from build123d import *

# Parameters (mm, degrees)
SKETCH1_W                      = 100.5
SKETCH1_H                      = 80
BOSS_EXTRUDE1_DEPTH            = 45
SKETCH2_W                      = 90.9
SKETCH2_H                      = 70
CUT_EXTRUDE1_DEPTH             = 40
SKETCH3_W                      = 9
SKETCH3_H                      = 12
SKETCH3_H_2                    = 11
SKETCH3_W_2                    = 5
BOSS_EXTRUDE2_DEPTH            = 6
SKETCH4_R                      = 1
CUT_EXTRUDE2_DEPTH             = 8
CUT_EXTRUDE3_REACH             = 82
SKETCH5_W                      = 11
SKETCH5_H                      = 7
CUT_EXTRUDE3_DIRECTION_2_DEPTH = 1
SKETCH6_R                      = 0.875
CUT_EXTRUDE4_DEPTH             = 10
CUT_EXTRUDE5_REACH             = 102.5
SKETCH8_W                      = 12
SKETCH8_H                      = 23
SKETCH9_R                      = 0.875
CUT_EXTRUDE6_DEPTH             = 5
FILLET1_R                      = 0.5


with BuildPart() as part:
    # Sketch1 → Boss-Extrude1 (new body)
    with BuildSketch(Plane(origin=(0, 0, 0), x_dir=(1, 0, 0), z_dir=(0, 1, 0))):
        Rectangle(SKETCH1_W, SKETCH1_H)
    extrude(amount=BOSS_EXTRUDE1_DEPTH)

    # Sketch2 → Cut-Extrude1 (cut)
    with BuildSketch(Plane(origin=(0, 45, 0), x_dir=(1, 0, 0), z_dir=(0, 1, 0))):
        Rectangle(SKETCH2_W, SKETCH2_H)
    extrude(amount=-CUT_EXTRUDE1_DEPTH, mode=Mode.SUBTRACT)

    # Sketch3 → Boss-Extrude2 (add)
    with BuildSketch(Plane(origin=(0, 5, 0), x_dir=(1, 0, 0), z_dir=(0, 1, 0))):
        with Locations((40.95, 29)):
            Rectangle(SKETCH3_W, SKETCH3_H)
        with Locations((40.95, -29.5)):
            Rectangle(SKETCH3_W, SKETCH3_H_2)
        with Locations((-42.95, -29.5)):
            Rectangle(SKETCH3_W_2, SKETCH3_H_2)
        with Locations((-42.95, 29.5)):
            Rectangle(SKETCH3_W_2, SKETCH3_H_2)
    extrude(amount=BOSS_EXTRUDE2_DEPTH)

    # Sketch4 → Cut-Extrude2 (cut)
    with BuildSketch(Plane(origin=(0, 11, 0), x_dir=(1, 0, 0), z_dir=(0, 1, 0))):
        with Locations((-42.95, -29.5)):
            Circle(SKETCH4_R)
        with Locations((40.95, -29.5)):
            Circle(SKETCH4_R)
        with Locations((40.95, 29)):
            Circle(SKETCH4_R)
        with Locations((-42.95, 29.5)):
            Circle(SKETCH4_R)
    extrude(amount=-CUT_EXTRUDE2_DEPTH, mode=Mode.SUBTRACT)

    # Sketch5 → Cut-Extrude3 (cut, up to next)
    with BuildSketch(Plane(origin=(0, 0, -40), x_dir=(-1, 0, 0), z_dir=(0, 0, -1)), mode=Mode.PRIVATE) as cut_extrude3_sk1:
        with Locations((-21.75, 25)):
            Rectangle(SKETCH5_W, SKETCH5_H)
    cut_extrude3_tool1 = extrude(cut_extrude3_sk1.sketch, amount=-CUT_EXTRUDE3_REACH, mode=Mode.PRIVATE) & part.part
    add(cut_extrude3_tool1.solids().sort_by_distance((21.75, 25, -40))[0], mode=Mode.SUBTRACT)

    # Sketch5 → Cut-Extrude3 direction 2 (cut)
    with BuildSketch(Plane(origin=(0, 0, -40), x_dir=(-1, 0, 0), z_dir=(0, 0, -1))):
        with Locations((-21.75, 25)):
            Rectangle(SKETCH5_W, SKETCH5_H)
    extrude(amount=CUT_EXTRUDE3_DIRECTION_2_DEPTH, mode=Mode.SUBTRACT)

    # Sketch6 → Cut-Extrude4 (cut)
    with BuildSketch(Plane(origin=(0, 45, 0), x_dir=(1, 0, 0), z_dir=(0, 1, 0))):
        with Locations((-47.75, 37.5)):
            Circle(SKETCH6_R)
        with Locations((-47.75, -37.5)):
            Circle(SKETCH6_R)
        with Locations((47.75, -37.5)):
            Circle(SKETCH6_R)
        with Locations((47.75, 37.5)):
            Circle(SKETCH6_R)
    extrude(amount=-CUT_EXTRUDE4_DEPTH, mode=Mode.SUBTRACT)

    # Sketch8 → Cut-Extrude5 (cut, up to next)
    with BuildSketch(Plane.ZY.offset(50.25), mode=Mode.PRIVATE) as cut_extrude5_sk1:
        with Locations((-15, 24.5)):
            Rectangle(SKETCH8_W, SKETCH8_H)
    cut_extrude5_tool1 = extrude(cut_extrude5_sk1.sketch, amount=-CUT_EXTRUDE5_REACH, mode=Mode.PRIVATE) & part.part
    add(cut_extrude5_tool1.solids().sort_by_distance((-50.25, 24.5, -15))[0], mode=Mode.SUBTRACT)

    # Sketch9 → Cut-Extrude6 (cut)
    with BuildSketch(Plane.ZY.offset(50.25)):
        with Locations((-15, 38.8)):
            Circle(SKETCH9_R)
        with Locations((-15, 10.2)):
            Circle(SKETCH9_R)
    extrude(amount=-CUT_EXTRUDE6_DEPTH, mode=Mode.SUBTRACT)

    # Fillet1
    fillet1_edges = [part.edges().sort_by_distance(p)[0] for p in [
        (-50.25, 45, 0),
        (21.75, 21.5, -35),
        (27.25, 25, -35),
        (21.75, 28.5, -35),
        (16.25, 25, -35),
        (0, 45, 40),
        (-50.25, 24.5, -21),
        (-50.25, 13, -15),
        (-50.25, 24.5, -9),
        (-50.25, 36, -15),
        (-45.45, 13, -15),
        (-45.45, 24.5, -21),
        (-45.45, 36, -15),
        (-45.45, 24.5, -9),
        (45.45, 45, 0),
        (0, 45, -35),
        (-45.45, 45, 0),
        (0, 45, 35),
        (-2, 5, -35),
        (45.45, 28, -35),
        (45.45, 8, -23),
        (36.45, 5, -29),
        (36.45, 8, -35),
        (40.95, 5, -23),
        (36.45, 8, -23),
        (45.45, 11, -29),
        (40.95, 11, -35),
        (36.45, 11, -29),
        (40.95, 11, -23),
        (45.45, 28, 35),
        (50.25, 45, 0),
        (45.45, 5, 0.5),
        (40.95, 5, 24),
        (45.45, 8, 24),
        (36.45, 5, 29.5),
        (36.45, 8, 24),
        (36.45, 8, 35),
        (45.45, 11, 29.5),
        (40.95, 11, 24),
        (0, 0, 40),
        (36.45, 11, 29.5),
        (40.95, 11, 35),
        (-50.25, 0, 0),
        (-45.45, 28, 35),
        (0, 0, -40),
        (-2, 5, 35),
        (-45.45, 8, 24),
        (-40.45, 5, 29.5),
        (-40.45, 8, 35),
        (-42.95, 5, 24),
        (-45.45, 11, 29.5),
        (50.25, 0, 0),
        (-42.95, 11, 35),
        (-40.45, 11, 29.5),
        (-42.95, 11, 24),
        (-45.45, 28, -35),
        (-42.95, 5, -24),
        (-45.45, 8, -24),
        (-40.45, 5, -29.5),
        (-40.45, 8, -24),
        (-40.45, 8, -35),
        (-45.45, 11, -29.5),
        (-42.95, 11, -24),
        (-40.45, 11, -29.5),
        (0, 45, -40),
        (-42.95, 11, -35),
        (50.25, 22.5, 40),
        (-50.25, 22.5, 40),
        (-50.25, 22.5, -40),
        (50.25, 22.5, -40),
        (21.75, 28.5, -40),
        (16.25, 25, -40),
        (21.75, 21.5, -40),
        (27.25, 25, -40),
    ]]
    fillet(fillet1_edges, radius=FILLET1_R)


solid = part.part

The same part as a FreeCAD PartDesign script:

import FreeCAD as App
import Part
import Sketcher
from FreeCAD import Vector


def edges_at(feature, points):
    """Names of the edges that pass closest to the given points."""
    edges = feature.Shape.Edges
    near = lambda p: min(range(len(edges)), key=lambda i: edges[i].distToShape(Part.Vertex(*p))[0])
    return sorted({f"Edge{near(p) + 1}" for p in points})


def add_polygon(sketch, points):
    """Adds a closed chain of lines whose ends are joined by coincident constraints."""
    first, n = sketch.GeometryCount, len(points)
    for a, b in zip(points, points[1:] + points[:1]):
        sketch.addGeometry(Part.LineSegment(App.Vector(*a, 0), App.Vector(*b, 0)), False)
    for i in range(n):
        sketch.addConstraint(Sketcher.Constraint("Coincident", first + i, 2, first + (i + 1) % n, 1))

doc = App.newDocument("Part")
body = doc.addObject("PartDesign::Body", "Body")

# Sketch on XZ plane
sketch1 = doc.addObject("Sketcher::SketchObject", "Sketch")
body.addObject(sketch1)
sketch1.AttachmentSupport = (doc.XZ_Plane, [""])
sketch1.MapMode = "FlatFace"
add_polygon(sketch1, [(-50.25, -40), (-50.25, 40), (50.25, 40), (50.25, -40)])  # lines 0-3
sketch1.addConstraint(Sketcher.Constraint("Vertical", 0))
sketch1.addConstraint(Sketcher.Constraint("Horizontal", 1))
sketch1.addConstraint(Sketcher.Constraint("Vertical", 2))
sketch1.addConstraint(Sketcher.Constraint("Horizontal", 3))
sketch1.addConstraint(Sketcher.Constraint("Symmetric", 0, 2, 2, 2, -1, 1))
sketch1.addConstraint(Sketcher.Constraint("DistanceY", 0, 1, 0, 2, 80.0))
sketch1.addConstraint(Sketcher.Constraint("DistanceX", 1, 1, 1, 2, 100.5))
pad1 = doc.addObject("PartDesign::Pad", "Pad")
body.addObject(pad1)
pad1.Profile = sketch1
pad1.Length = 45
pad1.Reversed = True

# Sketch on XZ plane
sketch2 = doc.addObject("Sketcher::SketchObject", "Sketch001")
body.addObject(sketch2)
sketch2.AttachmentSupport = (doc.XZ_Plane, [""])
sketch2.MapMode = "FlatFace"
sketch2.AttachmentOffset = App.Placement(Vector(0, 0, -45), App.Rotation())
add_polygon(sketch2, [(-45.45, -35), (-45.45, 35), (45.45, 35), (45.45, -35)])  # lines 0-3
sketch2.addConstraint(Sketcher.Constraint("Vertical", 0))
sketch2.addConstraint(Sketcher.Constraint("Horizontal", 1))
sketch2.addConstraint(Sketcher.Constraint("Vertical", 2))
sketch2.addConstraint(Sketcher.Constraint("Horizontal", 3))
sketch2.addConstraint(Sketcher.Constraint("Symmetric", 0, 2, 2, 2, -1, 1))
sketch2.addConstraint(Sketcher.Constraint("DistanceY", 0, 1, 0, 2, 70.0))
sketch2.addConstraint(Sketcher.Constraint("DistanceX", 1, 1, 1, 2, 90.9))
pocket1 = doc.addObject("PartDesign::Pocket", "Pocket")
body.addObject(pocket1)
pocket1.Profile = sketch2
pocket1.Length = 40
pocket1.Reversed = True

# Sketch on XZ plane
sketch3 = doc.addObject("Sketcher::SketchObject", "Sketch002")
body.addObject(sketch3)
sketch3.AttachmentSupport = (doc.XZ_Plane, [""])
sketch3.MapMode = "FlatFace"
sketch3.AttachmentOffset = App.Placement(Vector(0, 0, -5), App.Rotation())
add_polygon(sketch3, [(36.45, -35), (36.45, -23), (45.45, -23), (45.45, -35)])  # lines 0-3
add_polygon(sketch3, [(36.45, 24), (36.45, 35), (45.45, 35), (45.45, 24)])  # lines 4-7
add_polygon(sketch3, [(-45.45, 24), (-45.45, 35), (-40.45, 35), (-40.45, 24)])  # lines 8-11
add_polygon(sketch3, [(-45.45, -35), (-45.45, -24), (-40.45, -24), (-40.45, -35)])  # lines 12-15
sketch3.addConstraint(Sketcher.Constraint("Vertical", 0))
sketch3.addConstraint(Sketcher.Constraint("Horizontal", 1))
sketch3.addConstraint(Sketcher.Constraint("Vertical", 2))
sketch3.addConstraint(Sketcher.Constraint("Horizontal", 3))
sketch3.addConstraint(Sketcher.Constraint("Vertical", 4))
sketch3.addConstraint(Sketcher.Constraint("Horizontal", 5))
sketch3.addConstraint(Sketcher.Constraint("Vertical", 6))
sketch3.addConstraint(Sketcher.Constraint("Horizontal", 7))
sketch3.addConstraint(Sketcher.Constraint("Vertical", 8))
sketch3.addConstraint(Sketcher.Constraint("Horizontal", 9))
sketch3.addConstraint(Sketcher.Constraint("Vertical", 10))
sketch3.addConstraint(Sketcher.Constraint("Horizontal", 11))
sketch3.addConstraint(Sketcher.Constraint("Vertical", 12))
sketch3.addConstraint(Sketcher.Constraint("Horizontal", 13))
sketch3.addConstraint(Sketcher.Constraint("Vertical", 14))
sketch3.addConstraint(Sketcher.Constraint("Horizontal", 15))
sketch3.addConstraint(Sketcher.Constraint("Symmetric", 2, 2, 8, 2, -1, 1))
sketch3.addConstraint(Sketcher.Constraint("Symmetric", 6, 2, 12, 2, -1, 1))
sketch3.addConstraint(Sketcher.Constraint("Symmetric", 5, 2, 8, 2, -2))
sketch3.addConstraint(Sketcher.Constraint("Symmetric", 10, 2, 13, 2, -1))
sketch3.addConstraint(Sketcher.Constraint("Horizontal", 3, 2, 14, 2))
sketch3.addConstraint(Sketcher.Constraint("Vertical", 3, 2, 4, 2))
sketch3.addConstraint(Sketcher.Constraint("DistanceX", 1, 1, 1, 2, 9.0))
sketch3.addConstraint(Sketcher.Constraint("DistanceX", 9, 1, 9, 2, 5.0))
sketch3.addConstraint(Sketcher.Constraint("DistanceY", 0, 1, 0, 2, 12.0))
sketch3.addConstraint(Sketcher.Constraint("DistanceY", 4, 1, 4, 2, 11.0))
sketch3.addConstraint(Sketcher.Constraint("DistanceY", 0, 2, -1, 1, 23.0))
sketch3.addConstraint(Sketcher.Constraint("DistanceX", 8, 2, 4, 2, 81.9))
pad2 = doc.addObject("PartDesign::Pad", "Pad001")
body.addObject(pad2)
pad2.Profile = sketch3
pad2.Length = 6
pad2.Reversed = True

# Sketch on XZ plane
sketch4 = doc.addObject("Sketcher::SketchObject", "Sketch003")
body.addObject(sketch4)
sketch4.AttachmentSupport = (doc.XZ_Plane, [""])
sketch4.MapMode = "FlatFace"
sketch4.AttachmentOffset = App.Placement(Vector(0, 0, -11), App.Rotation())
sketch4.addGeometry(Part.Circle(Vector(-42.95, 29.5, 0), Vector(0, 0, 1), 1), False)
sketch4.addGeometry(Part.Circle(Vector(40.95, 29.5, 0), Vector(0, 0, 1), 1), False)
sketch4.addGeometry(Part.Circle(Vector(40.95, -29, 0), Vector(0, 0, 1), 1), False)
sketch4.addGeometry(Part.Circle(Vector(-42.95, -29.5, 0), Vector(0, 0, 1), 1), False)
sketch4.addConstraint(Sketcher.Constraint("Equal", 0, 1))
sketch4.addConstraint(Sketcher.Constraint("Equal", 1, 2))
sketch4.addConstraint(Sketcher.Constraint("Equal", 2, 3))
sketch4.addConstraint(Sketcher.Constraint("Symmetric", 0, 3, 3, 3, -1))
sketch4.addConstraint(Sketcher.Constraint("Horizontal", 0, 3, 1, 3))
sketch4.addConstraint(Sketcher.Constraint("Vertical", 1, 3, 2, 3))
sketch4.addConstraint(Sketcher.Constraint("Diameter", 0, 2.0))
sketch4.addConstraint(Sketcher.Constraint("DistanceY", 2, 3, -1, 1, 29.0))
sketch4.addConstraint(Sketcher.Constraint("DistanceY", 3, 3, 0, 3, 59.0))
sketch4.addConstraint(Sketcher.Constraint("DistanceX", 0, 3, 1, 3, 83.9))
sketch4.addConstraint(Sketcher.Constraint("DistanceX", 0, 3, -1, 1, 42.95))
pocket2 = doc.addObject("PartDesign::Pocket", "Pocket001")
body.addObject(pocket2)
pocket2.Profile = sketch4
pocket2.Length = 8
pocket2.Reversed = True

# Sketch on XY plane
sketch5 = doc.addObject("Sketcher::SketchObject", "Sketch004")
body.addObject(sketch5)
sketch5.AttachmentSupport = (doc.XY_Plane, [""])
sketch5.MapMode = "FlatFace"
sketch5.AttachmentOffset = App.Placement(Vector(0, 0, -40), App.Rotation())
add_polygon(sketch5, [(27.25, 28.5), (27.25, 21.5), (16.25, 21.5), (16.25, 28.5)])  # lines 0-3
sketch5.addConstraint(Sketcher.Constraint("Vertical", 0))
sketch5.addConstraint(Sketcher.Constraint("Horizontal", 1))
sketch5.addConstraint(Sketcher.Constraint("Vertical", 2))
sketch5.addConstraint(Sketcher.Constraint("Horizontal", 3))
sketch5.addConstraint(Sketcher.Constraint("DistanceX", 1, 2, 1, 1, 11.0))
sketch5.addConstraint(Sketcher.Constraint("DistanceY", 0, 2, 0, 1, 7.0))
sketch5.addConstraint(Sketcher.Constraint("DistanceY", -1, 1, 0, 2, 21.5))
sketch5.addConstraint(Sketcher.Constraint("DistanceX", -1, 1, 0, 2, 27.25))
pocket3 = doc.addObject("PartDesign::Pocket", "Pocket002")
body.addObject(pocket3)
pocket3.Profile = sketch5
pocket3.Type = "UpToFirst"
pocket3.Reversed = True

# Sketch on XY plane
sketch6 = doc.addObject("Sketcher::SketchObject", "Sketch005")
body.addObject(sketch6)
sketch6.AttachmentSupport = (doc.XY_Plane, [""])
sketch6.MapMode = "FlatFace"
sketch6.AttachmentOffset = App.Placement(Vector(0, 0, -40), App.Rotation())
add_polygon(sketch6, [(27.25, 28.5), (27.25, 21.5), (16.25, 21.5), (16.25, 28.5)])  # lines 0-3
sketch6.addConstraint(Sketcher.Constraint("Vertical", 0))
sketch6.addConstraint(Sketcher.Constraint("Horizontal", 1))
sketch6.addConstraint(Sketcher.Constraint("Vertical", 2))
sketch6.addConstraint(Sketcher.Constraint("Horizontal", 3))
sketch6.addConstraint(Sketcher.Constraint("DistanceX", 1, 2, 1, 1, 11.0))
sketch6.addConstraint(Sketcher.Constraint("DistanceY", 0, 2, 0, 1, 7.0))
sketch6.addConstraint(Sketcher.Constraint("DistanceY", -1, 1, 0, 2, 21.5))
sketch6.addConstraint(Sketcher.Constraint("DistanceX", -1, 1, 0, 2, 27.25))
pocket4 = doc.addObject("PartDesign::Pocket", "Pocket003")
body.addObject(pocket4)
pocket4.Profile = sketch6
pocket4.Length = 1

# Sketch on XZ plane
sketch7 = doc.addObject("Sketcher::SketchObject", "Sketch006")
body.addObject(sketch7)
sketch7.AttachmentSupport = (doc.XZ_Plane, [""])
sketch7.MapMode = "FlatFace"
sketch7.AttachmentOffset = App.Placement(Vector(0, 0, -45), App.Rotation())
sketch7.addGeometry(Part.Circle(Vector(-47.75, -37.5, 0), Vector(0, 0, 1), 0.875), False)
sketch7.addGeometry(Part.Circle(Vector(-47.75, 37.5, 0), Vector(0, 0, 1), 0.875), False)
sketch7.addGeometry(Part.Circle(Vector(47.75, 37.5, 0), Vector(0, 0, 1), 0.875), False)
sketch7.addGeometry(Part.Circle(Vector(47.75, -37.5, 0), Vector(0, 0, 1), 0.875), False)
sketch7.addConstraint(Sketcher.Constraint("Equal", 0, 1))
sketch7.addConstraint(Sketcher.Constraint("Equal", 1, 2))
sketch7.addConstraint(Sketcher.Constraint("Equal", 2, 3))
sketch7.addConstraint(Sketcher.Constraint("Symmetric", 0, 3, 2, 3, -1, 1))
sketch7.addConstraint(Sketcher.Constraint("Symmetric", 1, 3, 3, 3, -1, 1))
sketch7.addConstraint(Sketcher.Constraint("Symmetric", 1, 3, 2, 3, -2))
sketch7.addConstraint(Sketcher.Constraint("Diameter", 0, 1.75))
sketch7.addConstraint(Sketcher.Constraint("DistanceY", 0, 3, 1, 3, 75.0))
sketch7.addConstraint(Sketcher.Constraint("DistanceX", 1, 3, 2, 3, 95.5))
pocket5 = doc.addObject("PartDesign::Pocket", "Pocket004")
body.addObject(pocket5)
pocket5.Profile = sketch7
pocket5.Length = 10
pocket5.Reversed = True

# Sketch on YZ plane
sketch8 = doc.addObject("Sketcher::SketchObject", "Sketch007")
body.addObject(sketch8)
sketch8.AttachmentSupport = (doc.YZ_Plane, [""])
sketch8.MapMode = "FlatFace"
sketch8.AttachmentOffset = App.Placement(Vector(0, 0, -50.25), App.Rotation())
add_polygon(sketch8, [(36, -21), (13, -21), (13, -9), (36, -9)])  # lines 0-3
sketch8.addConstraint(Sketcher.Constraint("Horizontal", 0))
sketch8.addConstraint(Sketcher.Constraint("Vertical", 1))
sketch8.addConstraint(Sketcher.Constraint("Horizontal", 2))
sketch8.addConstraint(Sketcher.Constraint("Vertical", 3))
sketch8.addConstraint(Sketcher.Constraint("DistanceX", 0, 2, 0, 1, 23.0))
sketch8.addConstraint(Sketcher.Constraint("DistanceY", 1, 1, 1, 2, 12.0))
sketch8.addConstraint(Sketcher.Constraint("DistanceX", -1, 1, 0, 2, 13.0))
sketch8.addConstraint(Sketcher.Constraint("DistanceY", 0, 2, -1, 1, 21.0))
pocket6 = doc.addObject("PartDesign::Pocket", "Pocket005")
body.addObject(pocket6)
pocket6.Profile = sketch8
pocket6.Type = "UpToFirst"
pocket6.Reversed = True

# Sketch on YZ plane
sketch9 = doc.addObject("Sketcher::SketchObject", "Sketch008")
body.addObject(sketch9)
sketch9.AttachmentSupport = (doc.YZ_Plane, [""])
sketch9.MapMode = "FlatFace"
sketch9.AttachmentOffset = App.Placement(Vector(0, 0, -50.25), App.Rotation())
sketch9.addGeometry(Part.Circle(Vector(38.8, -15, 0), Vector(0, 0, 1), 0.875), False)
sketch9.addGeometry(Part.Circle(Vector(10.2, -15, 0), Vector(0, 0, 1), 0.875), False)
sketch9.addConstraint(Sketcher.Constraint("Equal", 0, 1))
sketch9.addConstraint(Sketcher.Constraint("Horizontal", 0, 3, 1, 3))
sketch9.addConstraint(Sketcher.Constraint("Diameter", 0, 1.75))
sketch9.addConstraint(Sketcher.Constraint("DistanceY", 0, 3, -1, 1, 15.0))
sketch9.addConstraint(Sketcher.Constraint("DistanceX", -1, 1, 0, 3, 38.8))
sketch9.addConstraint(Sketcher.Constraint("DistanceX", -1, 1, 1, 3, 10.2))
pocket7 = doc.addObject("PartDesign::Pocket", "Pocket006")
body.addObject(pocket7)
pocket7.Profile = sketch9
pocket7.Length = 5
pocket7.Reversed = True
doc.recompute()

fillet = doc.addObject("PartDesign::Fillet", "Fillet")
body.addObject(fillet)
fillet.Base = (pocket7, edges_at(pocket7, [
    (-50.25, 45, 0),
    (21.75, 21.5, -35),
    (27.25, 25, -35),
    (21.75, 28.5, -35),
    (16.25, 25, -35),
    (0, 45, 40),
    (-50.25, 24.5, -21),
    (-50.25, 13, -15),
    (-50.25, 24.5, -9),
    (-50.25, 36, -15),
    (-45.45, 13, -15),
    (-45.45, 24.5, -21),
    (-45.45, 36, -15),
    (-45.45, 24.5, -9),
    (45.45, 45, 0),
    (0, 45, -35),
    (-45.45, 45, 0),
    (0, 45, 35),
    (-2, 5, -35),
    (45.45, 28, -35),
    (45.45, 8, -23),
    (36.45, 5, -29),
    (36.45, 8, -35),
    (40.95, 5, -23),
    (36.45, 8, -23),
    (45.45, 11, -29),
    (40.95, 11, -35),
    (36.45, 11, -29),
    (40.95, 11, -23),
    (45.45, 28, 35),
    (50.25, 45, 0),
    (45.45, 5, 0.5),
    (40.95, 5, 24),
    (45.45, 8, 24),
    (36.45, 5, 29.5),
    (36.45, 8, 24),
    (36.45, 8, 35),
    (45.45, 11, 29.5),
    (40.95, 11, 24),
    (0, 0, 40),
    (36.45, 11, 29.5),
    (40.95, 11, 35),
    (-50.25, 0, 0),
    (-45.45, 28, 35),
    (0, 0, -40),
    (-2, 5, 35),
    (-45.45, 8, 24),
    (-40.45, 5, 29.5),
    (-40.45, 8, 35),
    (-42.95, 5, 24),
    (-45.45, 11, 29.5),
    (50.25, 0, 0),
    (-42.95, 11, 35),
    (-40.45, 11, 29.5),
    (-42.95, 11, 24),
    (-45.45, 28, -35),
    (-42.95, 5, -24),
    (-45.45, 8, -24),
    (-40.45, 5, -29.5),
    (-40.45, 8, -24),
    (-40.45, 8, -35),
    (-45.45, 11, -29.5),
    (-42.95, 11, -24),
    (-40.45, 11, -29.5),
    (0, 45, -40),
    (-42.95, 11, -35),
    (50.25, 22.5, 40),
    (-50.25, 22.5, 40),
    (-50.25, 22.5, -40),
    (50.25, 22.5, -40),
    (21.75, 28.5, -40),
    (16.25, 25, -40),
    (21.75, 21.5, -40),
    (27.25, 25, -40),
]))
fillet.Radius = 0.5

doc.recompute()
